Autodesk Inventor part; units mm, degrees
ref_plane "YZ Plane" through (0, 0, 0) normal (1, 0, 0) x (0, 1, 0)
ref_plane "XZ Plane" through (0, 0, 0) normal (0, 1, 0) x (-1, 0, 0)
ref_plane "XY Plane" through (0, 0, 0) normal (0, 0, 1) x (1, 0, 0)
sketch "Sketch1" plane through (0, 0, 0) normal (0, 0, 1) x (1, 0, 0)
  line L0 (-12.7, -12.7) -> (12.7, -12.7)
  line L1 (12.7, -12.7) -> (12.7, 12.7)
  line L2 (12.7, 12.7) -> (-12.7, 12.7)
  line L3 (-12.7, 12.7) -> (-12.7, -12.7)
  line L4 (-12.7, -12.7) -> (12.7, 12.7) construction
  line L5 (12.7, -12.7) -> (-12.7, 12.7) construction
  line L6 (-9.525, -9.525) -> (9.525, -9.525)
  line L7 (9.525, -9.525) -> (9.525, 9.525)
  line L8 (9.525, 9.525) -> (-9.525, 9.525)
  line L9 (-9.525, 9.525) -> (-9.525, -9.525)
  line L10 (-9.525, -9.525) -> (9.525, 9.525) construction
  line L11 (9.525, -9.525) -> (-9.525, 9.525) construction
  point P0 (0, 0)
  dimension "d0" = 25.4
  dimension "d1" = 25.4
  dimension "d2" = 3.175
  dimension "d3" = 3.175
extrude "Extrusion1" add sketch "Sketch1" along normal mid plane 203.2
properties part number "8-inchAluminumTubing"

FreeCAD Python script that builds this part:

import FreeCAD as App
import Part
import Sketcher
Q = App.Units.Quantity


def add_polygon(sketch, points):
    """Adds a closed chain of lines whose ends are joined by coincident constraints."""
    first, n = sketch.GeometryCount, len(points)
    for a, b in zip(points, points[1:] + points[:1]):
        sketch.addGeometry(Part.LineSegment(App.Vector(*a, 0), App.Vector(*b, 0)), False)
    for i in range(n):
        sketch.addConstraint(Sketcher.Constraint("Coincident", first + i, 2, first + (i + 1) % n, 1))

doc = App.newDocument("Part")
params = doc.addObject("Spreadsheet::Sheet", "Params")
for row, (alias, value) in enumerate([
    ("sketch1_width", "1 in"),
    ("pad1_length", "8 in"),
], start=1):
    params.set(f"A{row}", alias)
    params.set(f"B{row}", "=" + value)
    params.setAlias(f"B{row}", alias)

body = doc.addObject("PartDesign::Body", "Body")

# Sketch on XY plane
sketch1 = body.newObject("Sketcher::SketchObject", "Sketch")
sketch1.AttachmentSupport = (doc.getObject("XY_Plane"), [""])
sketch1.MapMode = "FlatFace"
add_polygon(sketch1, [(-13, 13), (-13, -13), (13, -13), (13, 13)])  # lines 0-3
add_polygon(sketch1, [(10, -10), (-10, -10), (-10, 10), (10, 10)])  # lines 4-7
sketch1.addConstraint([
    Sketcher.Constraint("Vertical", 0),
    Sketcher.Constraint("Horizontal", 1),
    Sketcher.Constraint("Vertical", 2),
    Sketcher.Constraint("Horizontal", 3),
    Sketcher.Constraint("Horizontal", 4),
    Sketcher.Constraint("Vertical", 5),
    Sketcher.Constraint("Horizontal", 6),
    Sketcher.Constraint("Vertical", 7),
    Sketcher.Constraint("Symmetric", 0, 2, 2, 2, -1, 1),
    Sketcher.Constraint("Symmetric", 4, 2, 6, 2, -1, 1),
    Sketcher.Constraint("Equal", 3, 0),
    Sketcher.Constraint("Equal", 6, 5),
    Sketcher.Constraint("DistanceX", 1, 1, 1, 2, Q("1 in")),
    Sketcher.Constraint("DistanceX", 0, 2, 4, 2, Q("0.125 in")),
])
sketch1.setExpression("Constraints[20]", "Params.sketch1_width")
pad1 = body.newObject("PartDesign::Pad", "Pad")
pad1.Profile = sketch1
pad1.setExpression("Length", "Params.pad1_length")
pad1.Midplane = True

doc.recompute()
